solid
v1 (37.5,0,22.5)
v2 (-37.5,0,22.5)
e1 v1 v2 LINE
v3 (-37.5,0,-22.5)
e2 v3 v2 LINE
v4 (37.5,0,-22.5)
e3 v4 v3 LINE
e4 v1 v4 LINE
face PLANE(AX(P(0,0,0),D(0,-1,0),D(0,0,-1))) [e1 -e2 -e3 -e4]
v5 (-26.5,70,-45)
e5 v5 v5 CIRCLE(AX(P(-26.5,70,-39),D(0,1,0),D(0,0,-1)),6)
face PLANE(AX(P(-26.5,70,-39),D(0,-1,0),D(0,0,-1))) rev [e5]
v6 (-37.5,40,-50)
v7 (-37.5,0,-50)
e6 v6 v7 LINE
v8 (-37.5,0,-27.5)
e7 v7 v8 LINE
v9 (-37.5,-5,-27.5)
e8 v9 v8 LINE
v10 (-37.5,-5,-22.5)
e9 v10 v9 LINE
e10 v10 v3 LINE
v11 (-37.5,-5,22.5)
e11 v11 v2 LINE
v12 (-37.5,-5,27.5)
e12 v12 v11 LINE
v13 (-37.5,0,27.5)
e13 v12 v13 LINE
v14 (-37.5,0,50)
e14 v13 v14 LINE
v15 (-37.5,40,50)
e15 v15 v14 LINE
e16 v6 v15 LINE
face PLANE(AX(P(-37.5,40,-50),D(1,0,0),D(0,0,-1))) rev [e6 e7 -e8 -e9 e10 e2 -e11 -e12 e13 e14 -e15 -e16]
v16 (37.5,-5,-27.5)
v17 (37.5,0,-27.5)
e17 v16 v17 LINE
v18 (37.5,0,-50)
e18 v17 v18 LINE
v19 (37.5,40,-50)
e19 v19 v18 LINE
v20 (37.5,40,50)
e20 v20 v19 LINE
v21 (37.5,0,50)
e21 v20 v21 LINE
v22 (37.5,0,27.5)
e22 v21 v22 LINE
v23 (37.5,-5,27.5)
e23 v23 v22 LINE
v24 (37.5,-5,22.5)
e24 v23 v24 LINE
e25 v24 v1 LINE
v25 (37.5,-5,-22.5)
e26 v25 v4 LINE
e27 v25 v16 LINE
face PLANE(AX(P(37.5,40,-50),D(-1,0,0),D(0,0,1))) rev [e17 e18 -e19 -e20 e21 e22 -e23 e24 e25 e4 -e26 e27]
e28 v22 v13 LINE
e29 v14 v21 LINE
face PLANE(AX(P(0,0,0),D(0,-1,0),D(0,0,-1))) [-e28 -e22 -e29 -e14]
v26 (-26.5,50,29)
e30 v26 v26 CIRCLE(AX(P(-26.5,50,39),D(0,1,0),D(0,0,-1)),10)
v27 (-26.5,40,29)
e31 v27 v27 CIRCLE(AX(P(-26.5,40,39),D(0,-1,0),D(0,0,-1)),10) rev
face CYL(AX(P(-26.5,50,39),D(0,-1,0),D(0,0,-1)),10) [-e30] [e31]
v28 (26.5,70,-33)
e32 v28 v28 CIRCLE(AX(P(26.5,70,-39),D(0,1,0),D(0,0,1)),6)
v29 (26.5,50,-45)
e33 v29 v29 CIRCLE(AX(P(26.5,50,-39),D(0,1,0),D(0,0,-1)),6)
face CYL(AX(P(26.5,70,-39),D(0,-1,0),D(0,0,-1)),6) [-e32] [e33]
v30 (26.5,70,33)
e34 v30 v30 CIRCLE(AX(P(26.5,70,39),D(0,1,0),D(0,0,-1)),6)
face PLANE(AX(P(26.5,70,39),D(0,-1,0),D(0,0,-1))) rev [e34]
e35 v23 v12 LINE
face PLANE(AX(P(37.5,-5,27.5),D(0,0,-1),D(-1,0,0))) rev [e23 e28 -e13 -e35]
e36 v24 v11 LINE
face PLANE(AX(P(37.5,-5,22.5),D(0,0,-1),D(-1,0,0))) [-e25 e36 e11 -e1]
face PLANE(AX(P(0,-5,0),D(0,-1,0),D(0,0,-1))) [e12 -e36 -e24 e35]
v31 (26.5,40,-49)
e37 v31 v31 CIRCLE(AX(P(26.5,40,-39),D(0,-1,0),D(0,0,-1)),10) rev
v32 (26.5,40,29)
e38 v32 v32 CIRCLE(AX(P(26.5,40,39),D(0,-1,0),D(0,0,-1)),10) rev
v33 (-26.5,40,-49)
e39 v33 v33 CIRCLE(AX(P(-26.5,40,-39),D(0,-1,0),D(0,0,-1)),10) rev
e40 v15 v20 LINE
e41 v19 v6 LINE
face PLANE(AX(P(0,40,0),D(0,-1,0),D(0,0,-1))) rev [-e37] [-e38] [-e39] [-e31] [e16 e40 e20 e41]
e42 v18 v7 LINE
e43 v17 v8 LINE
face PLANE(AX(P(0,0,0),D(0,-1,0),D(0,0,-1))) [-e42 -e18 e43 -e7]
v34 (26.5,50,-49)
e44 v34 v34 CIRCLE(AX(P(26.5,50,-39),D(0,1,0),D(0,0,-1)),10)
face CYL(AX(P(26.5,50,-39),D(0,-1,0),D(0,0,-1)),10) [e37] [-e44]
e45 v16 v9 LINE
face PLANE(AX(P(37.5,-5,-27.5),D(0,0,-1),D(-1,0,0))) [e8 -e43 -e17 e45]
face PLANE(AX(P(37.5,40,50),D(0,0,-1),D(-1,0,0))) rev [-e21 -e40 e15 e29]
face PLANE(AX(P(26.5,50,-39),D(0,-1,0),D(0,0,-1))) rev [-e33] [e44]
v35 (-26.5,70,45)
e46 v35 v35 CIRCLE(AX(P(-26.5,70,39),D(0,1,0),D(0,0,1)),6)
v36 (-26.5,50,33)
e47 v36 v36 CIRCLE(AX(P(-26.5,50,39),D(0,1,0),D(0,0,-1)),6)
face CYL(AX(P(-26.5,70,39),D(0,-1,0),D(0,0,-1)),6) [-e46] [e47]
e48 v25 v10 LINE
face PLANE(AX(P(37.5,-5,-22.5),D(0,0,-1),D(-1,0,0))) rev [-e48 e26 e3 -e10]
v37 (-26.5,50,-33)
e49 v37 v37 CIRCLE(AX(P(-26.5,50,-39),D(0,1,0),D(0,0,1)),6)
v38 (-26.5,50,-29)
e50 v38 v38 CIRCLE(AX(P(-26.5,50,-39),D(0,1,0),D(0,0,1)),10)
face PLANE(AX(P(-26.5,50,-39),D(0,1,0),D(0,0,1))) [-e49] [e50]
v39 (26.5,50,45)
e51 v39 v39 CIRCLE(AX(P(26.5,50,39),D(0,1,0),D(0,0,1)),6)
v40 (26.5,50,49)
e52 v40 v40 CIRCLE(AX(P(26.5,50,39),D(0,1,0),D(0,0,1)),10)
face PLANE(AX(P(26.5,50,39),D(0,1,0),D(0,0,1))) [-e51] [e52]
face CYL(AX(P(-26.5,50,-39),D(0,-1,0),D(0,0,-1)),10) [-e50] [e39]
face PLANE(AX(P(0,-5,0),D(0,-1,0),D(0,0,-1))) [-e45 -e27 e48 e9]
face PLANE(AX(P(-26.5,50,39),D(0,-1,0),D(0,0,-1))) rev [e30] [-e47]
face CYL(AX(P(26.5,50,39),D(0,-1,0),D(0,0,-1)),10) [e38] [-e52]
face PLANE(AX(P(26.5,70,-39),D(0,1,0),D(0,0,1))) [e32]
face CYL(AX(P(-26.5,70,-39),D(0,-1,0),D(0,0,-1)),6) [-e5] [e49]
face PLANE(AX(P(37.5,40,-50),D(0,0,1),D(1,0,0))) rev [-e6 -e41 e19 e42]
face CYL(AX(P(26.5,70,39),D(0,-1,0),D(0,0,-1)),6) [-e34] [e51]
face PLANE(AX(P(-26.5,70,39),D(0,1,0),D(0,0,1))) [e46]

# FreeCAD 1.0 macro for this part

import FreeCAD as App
import Part
import Sketcher
Q = App.Units.Quantity


def add_polygon(sketch, points):
    """Adds a closed chain of lines whose ends are joined by coincident constraints."""
    first, n = sketch.GeometryCount, len(points)
    for a, b in zip(points, points[1:] + points[:1]):
        sketch.addGeometry(Part.LineSegment(App.Vector(*a, 0), App.Vector(*b, 0)), False)
    for i in range(n):
        sketch.addConstraint(Sketcher.Constraint("Coincident", first + i, 2, first + (i + 1) % n, 1))

doc = App.newDocument("Part")
body = doc.addObject("PartDesign::Body", "Body")

sketch1 = body.newObject("Sketcher::SketchObject", "Sketch")
sketch1.AttachmentSupport = (doc.getObject("XZ_Plane"), [""])
sketch1.MapMode = "FlatFace"
add_polygon(sketch1, [(-38, -50), (-38, 50), (38, 50), (38, -50)])
sketch1.addConstraint([
    Sketcher.Constraint("Vertical", 0),
    Sketcher.Constraint("Horizontal", 1),
    Sketcher.Constraint("Vertical", 2),
    Sketcher.Constraint("Horizontal", 3),
    Sketcher.Constraint("Symmetric", 0, 2, 2, 2, -1, 1),
    Sketcher.Constraint("DistanceX", 1, 1, 1, 2, Q("75 mm")),
    Sketcher.Constraint("DistanceY", 0, 1, 0, 2, Q("100 mm")),
])
pad1 = body.newObject("PartDesign::Pad", "Pad")
pad1.Profile = sketch1
pad1.Length = 40
pad1.Reversed = True

sketch2 = body.newObject("Sketcher::SketchObject", "Sketch001")
sketch2.AttachmentSupport = (doc.getObject("XZ_Plane"), [""])
sketch2.MapMode = "FlatFace"
add_polygon(sketch2, [(-38, 28), (-38, 22), (38, 22), (38, 28)])
add_polygon(sketch2, [(-38, -22), (-38, -28), (38, -28), (38, -22)])
sketch2.addConstraint([
    Sketcher.Constraint("Vertical", 0),
    Sketcher.Constraint("Horizontal", 1),
    Sketcher.Constraint("Vertical", 2),
    Sketcher.Constraint("Horizontal", 3),
    Sketcher.Constraint("Vertical", 4),
    Sketcher.Constraint("Horizontal", 5),
    Sketcher.Constraint("Vertical", 6),
    Sketcher.Constraint("Horizontal", 7),
    Sketcher.Constraint("Symmetric", 2, 2, 4, 2, -1, 1),
    Sketcher.Constraint("Symmetric", 0, 2, 6, 2, -1, 1),
    Sketcher.Constraint("Vertical", 3, 2, 4, 2),
    Sketcher.Constraint("DistanceX", 1, 1, 1, 2, Q("75 mm")),
    Sketcher.Constraint("DistanceY", 0, 2, 0, 1, Q("5 mm")),
    Sketcher.Constraint("DistanceY", 4, 2, 0, 2, Q("50 mm")),
])
pad2 = body.newObject("PartDesign::Pad", "Pad001")
pad2.Profile = sketch2
pad2.Length = 5

sketch3 = body.newObject("Sketcher::SketchObject", "Sketch002")
sketch3.AttachmentSupport = (doc.getObject("XZ_Plane"), [""])
sketch3.MapMode = "FlatFace"
sketch3.AttachmentOffset = App.Placement(App.Vector(0, 0, -40), App.Rotation())
sketch3.addGeometry([
    Part.Circle(App.Vector(-26, -39, 0), App.Vector(0, 0, 1), 10),
    Part.Circle(App.Vector(-26, -39, 0), App.Vector(0, 0, 1), 6),
    Part.Circle(App.Vector(26, -39, 0), App.Vector(0, 0, 1), 10),
    Part.Circle(App.Vector(26, -39, 0), App.Vector(0, 0, 1), 6),
    Part.Circle(App.Vector(26, 39, 0), App.Vector(0, 0, 1), 10),
    Part.Circle(App.Vector(26, 39, 0), App.Vector(0, 0, 1), 6),
    Part.Circle(App.Vector(-26, 39, 0), App.Vector(0, 0, 1), 10),
    Part.Circle(App.Vector(-26, 39, 0), App.Vector(0, 0, 1), 6),
], False)
sketch3.addConstraint([
    Sketcher.Constraint("Coincident", 1, 3, 0, 3),
    Sketcher.Constraint("Coincident", 3, 3, 2, 3),
    Sketcher.Constraint("Coincident", 5, 3, 4, 3),
    Sketcher.Constraint("Coincident", 7, 3, 6, 3),
    Sketcher.Constraint("Equal", 0, 2),
    Sketcher.Constraint("Equal", 1, 3),
    Sketcher.Constraint("Equal", 2, 4),
    Sketcher.Constraint("Equal", 3, 5),
    Sketcher.Constraint("Equal", 4, 6),
    Sketcher.Constraint("Equal", 5, 7),
    Sketcher.Constraint("Symmetric", 0, 3, 4, 3, -1, 1),
    Sketcher.Constraint("Symmetric", 2, 3, 6, 3, -1, 1),
    Sketcher.Constraint("Symmetric", 0, 3, 2, 3, -2),
    Sketcher.Constraint("Diameter", 0, Q("20 mm")),
    Sketcher.Constraint("Diameter", 1, Q("12 mm")),
    Sketcher.Constraint("DistanceY", 0, 3, -1, 1, Q("39 mm")),
    Sketcher.Constraint("DistanceX", 0, 3, 2, 3, Q("53 mm")),
])
pad3 = body.newObject("PartDesign::Pad", "Pad002")
pad3.Profile = sketch3
pad3.Length = 10
pad3.Reversed = True

sketch4 = body.newObject("Sketcher::SketchObject", "Sketch003")
sketch4.AttachmentSupport = (doc.getObject("XZ_Plane"), [""])
sketch4.MapMode = "FlatFace"
sketch4.AttachmentOffset = App.Placement(App.Vector(0, 0, -40), App.Rotation())
sketch4.addGeometry([
    Part.Circle(App.Vector(-26, 39, 0), App.Vector(0, 0, 1), 6),
    Part.Circle(App.Vector(-26, -39, 0), App.Vector(0, 0, 1), 6),
    Part.Circle(App.Vector(26, 39, 0), App.Vector(0, 0, 1), 6),
    Part.Circle(App.Vector(26, -39, 0), App.Vector(0, 0, 1), 6),
], False)
sketch4.addConstraint([
    Sketcher.Constraint("Equal", 0, 1),
    Sketcher.Constraint("Equal", 1, 2),
    Sketcher.Constraint("Equal", 2, 3),
    Sketcher.Constraint("Symmetric", 1, 3, 2, 3, -1, 1),
    Sketcher.Constraint("Symmetric", 0, 3, 3, 3, -1, 1),
    Sketcher.Constraint("Symmetric", 0, 3, 2, 3, -2),
    Sketcher.Constraint("Diameter", 0, Q("12 mm")),
    Sketcher.Constraint("DistanceY", -1, 1, 0, 3, Q("39 mm")),
    Sketcher.Constraint("DistanceX", 0, 3, 2, 3, Q("53 mm")),
])
pad4 = body.newObject("PartDesign::Pad", "Pad003")
pad4.Profile = sketch4
pad4.Length = 30
pad4.Reversed = True

doc.recompute()
